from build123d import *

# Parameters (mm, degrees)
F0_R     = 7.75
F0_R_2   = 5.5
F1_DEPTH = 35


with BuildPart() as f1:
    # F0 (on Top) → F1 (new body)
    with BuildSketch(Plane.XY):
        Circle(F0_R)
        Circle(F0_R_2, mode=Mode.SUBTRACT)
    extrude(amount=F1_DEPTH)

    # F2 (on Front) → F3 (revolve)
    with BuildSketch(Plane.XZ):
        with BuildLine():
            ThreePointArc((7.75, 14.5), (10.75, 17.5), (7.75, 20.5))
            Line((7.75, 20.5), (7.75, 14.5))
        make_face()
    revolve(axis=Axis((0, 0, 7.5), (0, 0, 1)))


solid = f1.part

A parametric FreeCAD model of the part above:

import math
import FreeCAD as App
import Part
import Sketcher
from FreeCAD import Vector
Q = App.Units.Quantity

doc = App.newDocument("Part")
body = doc.addObject("PartDesign::Body", "Body")

# Sketch on XY plane
sketch1 = body.newObject("Sketcher::SketchObject", "Sketch")
sketch1.AttachmentSupport = (doc.getObject("XY_Plane"), [""])
sketch1.MapMode = "FlatFace"
sketch1.addGeometry([
    Part.Circle(Vector(0, 0, 0), Vector(0, 0, 1), 8),
    Part.Circle(Vector(0, 0, 0), Vector(0, 0, 1), 6),
], False)
sketch1.addConstraint([
    Sketcher.Constraint("Coincident", 0, 3, -1, 1),
    Sketcher.Constraint("Coincident", 1, 3, -1, 1),
    Sketcher.Constraint("Diameter", 1, Q("11 mm")),
    Sketcher.Constraint("Diameter", 0, Q("15.5 mm")),
])
pad1 = body.newObject("PartDesign::Pad", "Pad")
pad1.Profile = sketch1
pad1.Length = 35

# Sketch on XZ plane
sketch2 = body.newObject("Sketcher::SketchObject", "Sketch001")
sketch2.AttachmentSupport = (doc.getObject("XZ_Plane"), [""])
sketch2.MapMode = "FlatFace"
sketch2.addGeometry([
    Part.ArcOfCircle(Part.Circle(Vector(7.8, 17.5, 0), Vector(0, 0, 1), 3), math.radians(-90), math.radians(90)),
    Part.LineSegment(Vector(7.8, 20.5, 0), Vector(7.8, 14.5, 0)),
], False)
sketch2.addConstraint([
    Sketcher.Constraint("Coincident", 0, 1, 1, 2),
    Sketcher.Constraint("Coincident", 1, 1, 0, 2),
    Sketcher.Constraint("Vertical", 1),
    Sketcher.Constraint("Radius", 0, Q("3 mm")),
    Sketcher.Constraint("DistanceY", -1, 1, 0, 3, Q("17.5 mm")),
    Sketcher.Constraint("DistanceX", -1, 1, 0, 3, Q("7.75 mm")),
    Sketcher.Constraint("DistanceX", -1, 1, 0, 1, Q("7.75 mm")),
])
revolution = body.newObject("PartDesign::Revolution", "Revolution")
revolution.Profile = sketch2
revolution.ReferenceAxis = (sketch2, ["V_Axis"])
revolution.Angle = 360

doc.recompute()
